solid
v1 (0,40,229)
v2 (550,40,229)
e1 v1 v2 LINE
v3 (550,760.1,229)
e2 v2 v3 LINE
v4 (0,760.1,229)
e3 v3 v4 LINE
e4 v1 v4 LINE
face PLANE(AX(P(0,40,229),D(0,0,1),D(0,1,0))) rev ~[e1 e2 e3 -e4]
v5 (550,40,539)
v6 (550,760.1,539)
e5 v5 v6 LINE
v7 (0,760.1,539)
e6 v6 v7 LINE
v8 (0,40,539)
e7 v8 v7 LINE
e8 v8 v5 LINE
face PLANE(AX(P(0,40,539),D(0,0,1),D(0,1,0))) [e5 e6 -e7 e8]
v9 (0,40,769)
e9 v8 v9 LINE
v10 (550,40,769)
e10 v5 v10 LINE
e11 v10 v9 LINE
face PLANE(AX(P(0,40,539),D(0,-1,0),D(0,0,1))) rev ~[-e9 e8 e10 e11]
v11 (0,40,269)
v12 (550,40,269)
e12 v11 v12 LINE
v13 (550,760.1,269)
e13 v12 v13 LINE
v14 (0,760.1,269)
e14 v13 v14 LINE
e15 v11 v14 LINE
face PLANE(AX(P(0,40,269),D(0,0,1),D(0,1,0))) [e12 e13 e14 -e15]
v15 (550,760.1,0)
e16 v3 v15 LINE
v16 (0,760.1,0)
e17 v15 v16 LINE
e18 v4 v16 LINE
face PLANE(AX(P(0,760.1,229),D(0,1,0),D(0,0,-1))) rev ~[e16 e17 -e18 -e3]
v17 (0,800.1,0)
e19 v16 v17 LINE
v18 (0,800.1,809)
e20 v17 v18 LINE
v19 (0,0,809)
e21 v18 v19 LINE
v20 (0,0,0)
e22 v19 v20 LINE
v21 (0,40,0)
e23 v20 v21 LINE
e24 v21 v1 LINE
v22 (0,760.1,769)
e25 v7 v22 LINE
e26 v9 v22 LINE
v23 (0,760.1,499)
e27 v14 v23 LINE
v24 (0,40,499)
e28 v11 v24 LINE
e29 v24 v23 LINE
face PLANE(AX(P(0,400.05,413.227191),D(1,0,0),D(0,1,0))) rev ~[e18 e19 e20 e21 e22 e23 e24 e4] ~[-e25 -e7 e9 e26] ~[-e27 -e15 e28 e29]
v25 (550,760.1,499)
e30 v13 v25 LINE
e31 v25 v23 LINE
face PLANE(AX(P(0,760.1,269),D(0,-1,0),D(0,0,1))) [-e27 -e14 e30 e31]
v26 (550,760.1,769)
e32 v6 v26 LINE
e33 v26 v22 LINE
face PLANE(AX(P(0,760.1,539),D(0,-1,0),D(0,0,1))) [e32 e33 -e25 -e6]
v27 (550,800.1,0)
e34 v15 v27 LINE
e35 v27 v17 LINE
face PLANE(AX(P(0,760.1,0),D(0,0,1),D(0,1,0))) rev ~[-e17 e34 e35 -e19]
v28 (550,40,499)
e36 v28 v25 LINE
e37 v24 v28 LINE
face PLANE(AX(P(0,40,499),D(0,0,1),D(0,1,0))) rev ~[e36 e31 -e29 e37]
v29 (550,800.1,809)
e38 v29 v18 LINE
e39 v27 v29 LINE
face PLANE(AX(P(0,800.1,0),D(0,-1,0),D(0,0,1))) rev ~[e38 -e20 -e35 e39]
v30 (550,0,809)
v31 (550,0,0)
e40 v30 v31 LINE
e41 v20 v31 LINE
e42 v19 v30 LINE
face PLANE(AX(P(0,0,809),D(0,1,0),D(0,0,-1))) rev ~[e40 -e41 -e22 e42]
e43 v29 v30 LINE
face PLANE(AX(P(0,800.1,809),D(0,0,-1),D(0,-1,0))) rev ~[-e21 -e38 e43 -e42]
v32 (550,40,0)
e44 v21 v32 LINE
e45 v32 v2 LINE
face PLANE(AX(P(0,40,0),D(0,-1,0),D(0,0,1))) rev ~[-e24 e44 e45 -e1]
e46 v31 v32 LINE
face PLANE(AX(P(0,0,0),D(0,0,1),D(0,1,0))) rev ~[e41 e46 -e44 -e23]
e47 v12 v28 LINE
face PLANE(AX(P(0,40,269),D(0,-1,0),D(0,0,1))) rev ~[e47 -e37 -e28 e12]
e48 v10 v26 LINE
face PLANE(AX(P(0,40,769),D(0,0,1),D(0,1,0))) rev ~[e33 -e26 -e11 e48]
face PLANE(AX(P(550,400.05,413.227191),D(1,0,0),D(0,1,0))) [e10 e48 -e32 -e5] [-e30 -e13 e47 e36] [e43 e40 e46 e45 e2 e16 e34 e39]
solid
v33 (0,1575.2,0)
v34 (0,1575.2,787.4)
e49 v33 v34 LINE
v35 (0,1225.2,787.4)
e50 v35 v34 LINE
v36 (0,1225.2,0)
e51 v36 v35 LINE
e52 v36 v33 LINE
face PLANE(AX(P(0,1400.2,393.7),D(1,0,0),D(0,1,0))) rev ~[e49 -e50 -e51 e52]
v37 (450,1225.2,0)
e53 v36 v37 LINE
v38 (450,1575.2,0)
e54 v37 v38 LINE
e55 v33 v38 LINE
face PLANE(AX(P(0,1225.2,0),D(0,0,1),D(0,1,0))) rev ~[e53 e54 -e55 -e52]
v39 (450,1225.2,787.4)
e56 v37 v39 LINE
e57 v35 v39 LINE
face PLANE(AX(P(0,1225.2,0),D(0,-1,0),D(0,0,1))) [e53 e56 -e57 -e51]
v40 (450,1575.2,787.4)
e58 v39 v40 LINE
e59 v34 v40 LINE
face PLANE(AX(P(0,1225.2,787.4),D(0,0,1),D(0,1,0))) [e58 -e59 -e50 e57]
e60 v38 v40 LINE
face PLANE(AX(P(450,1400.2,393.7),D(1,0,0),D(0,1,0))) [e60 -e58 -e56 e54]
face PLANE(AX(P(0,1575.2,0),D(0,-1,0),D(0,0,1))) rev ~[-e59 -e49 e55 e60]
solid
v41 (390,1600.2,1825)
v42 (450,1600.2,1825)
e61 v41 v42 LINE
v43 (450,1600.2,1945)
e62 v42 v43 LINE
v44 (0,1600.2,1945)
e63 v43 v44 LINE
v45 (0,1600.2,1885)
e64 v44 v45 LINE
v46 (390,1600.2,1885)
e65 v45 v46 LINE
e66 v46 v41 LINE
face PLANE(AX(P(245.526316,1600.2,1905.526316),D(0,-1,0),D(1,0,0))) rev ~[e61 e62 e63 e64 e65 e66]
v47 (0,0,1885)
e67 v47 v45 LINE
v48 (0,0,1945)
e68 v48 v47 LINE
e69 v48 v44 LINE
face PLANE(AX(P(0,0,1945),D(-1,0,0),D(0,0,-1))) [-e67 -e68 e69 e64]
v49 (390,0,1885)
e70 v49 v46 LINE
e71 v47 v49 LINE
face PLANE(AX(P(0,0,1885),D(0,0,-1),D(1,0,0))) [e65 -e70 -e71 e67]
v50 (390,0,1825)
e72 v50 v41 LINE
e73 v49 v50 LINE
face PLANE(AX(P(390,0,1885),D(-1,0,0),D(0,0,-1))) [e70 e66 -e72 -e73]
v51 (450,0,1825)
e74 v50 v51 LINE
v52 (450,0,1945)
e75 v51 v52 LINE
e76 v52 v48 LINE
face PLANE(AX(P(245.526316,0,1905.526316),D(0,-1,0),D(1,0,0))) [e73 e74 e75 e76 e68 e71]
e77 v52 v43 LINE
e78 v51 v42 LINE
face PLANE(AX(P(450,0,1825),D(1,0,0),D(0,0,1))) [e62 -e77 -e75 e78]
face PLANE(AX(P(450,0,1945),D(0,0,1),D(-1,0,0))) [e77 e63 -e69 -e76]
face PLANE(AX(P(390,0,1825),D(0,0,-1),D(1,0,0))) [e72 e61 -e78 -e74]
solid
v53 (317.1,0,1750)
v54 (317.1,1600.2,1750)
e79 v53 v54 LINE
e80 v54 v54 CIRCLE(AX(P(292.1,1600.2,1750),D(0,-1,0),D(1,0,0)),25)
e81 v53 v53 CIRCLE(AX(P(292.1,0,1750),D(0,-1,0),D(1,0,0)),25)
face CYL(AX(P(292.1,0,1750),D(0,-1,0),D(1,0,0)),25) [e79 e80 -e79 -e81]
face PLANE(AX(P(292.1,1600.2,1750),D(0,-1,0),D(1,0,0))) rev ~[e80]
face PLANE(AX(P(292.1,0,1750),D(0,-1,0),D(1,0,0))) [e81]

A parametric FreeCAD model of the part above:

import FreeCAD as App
import Part
import Sketcher

V = App.Vector
Q = App.Units.Quantity

doc = App.newDocument("Part")
body = doc.addObject("PartDesign::Body", "Body")
body.AllowCompound = True

# Sketch on XZ plane
sketch1 = doc.addObject("Sketcher::SketchObject", "Sketch")
body.addObject(sketch1)
sketch1.AttachmentSupport = (doc.XZ_Plane, [""])
sketch1.MapMode = "FlatFace"
sketch1.addGeometry([
    Part.Circle(V(292.1, 1750, 0), V(0, 0, 1), 25),  # 0
    Part.LineSegment(V(450, 1945, 0), V(0, 1945, 0)),  # 1
    Part.LineSegment(V(0, 1945, 0), V(0, 1885, 0)),  # 2
    Part.LineSegment(V(0, 1885, 0), V(390, 1885, 0)),  # 3
    Part.LineSegment(V(390, 1885, 0), V(390, 1825, 0)),  # 4
    Part.LineSegment(V(390, 1825, 0), V(450, 1825, 0)),  # 5
    Part.LineSegment(V(450, 1825, 0), V(450, 1945, 0)),  # 6
], False)
sketch1.addConstraint([
    Sketcher.Constraint("Coincident", 1, 2, 2, 1),
    Sketcher.Constraint("Coincident", 2, 2, 3, 1),
    Sketcher.Constraint("Coincident", 3, 2, 4, 1),
    Sketcher.Constraint("Coincident", 4, 2, 5, 1),
    Sketcher.Constraint("Coincident", 5, 2, 6, 1),
    Sketcher.Constraint("Coincident", 6, 2, 1, 1),
    Sketcher.Constraint("Horizontal", 1),
    Sketcher.Constraint("Vertical", 2),
    Sketcher.Constraint("Horizontal", 3),
    Sketcher.Constraint("Vertical", 4),
    Sketcher.Constraint("Horizontal", 5),
    Sketcher.Constraint("Vertical", 6),
    Sketcher.Constraint("PointOnObject", 1, 2, -2),
    Sketcher.Constraint("Equal", 5, 2),
    Sketcher.Constraint("Equal", 2, 4),
    Sketcher.Constraint("Diameter", 0, Q("50 mm")),
    Sketcher.Constraint("DistanceX", 1, 2, 1, 1, Q("450 mm")),
    Sketcher.Constraint("DistanceX", 3, 1, 3, 2, Q("390 mm")),
    Sketcher.Constraint("DistanceY", -1, 1, 0, 3, Q("1750 mm")),
    Sketcher.Constraint("DistanceY", -1, 1, 1, 2, Q("1945 mm")),
    Sketcher.Constraint("DistanceX", -1, 1, 0, 3, Q("292.1 mm")),
])
pad1 = doc.addObject("PartDesign::Pad", "Pad")
body.addObject(pad1)
pad1.Profile = sketch1
pad1.Length = 1600.2
pad1.Reversed = True
body2 = doc.addObject("PartDesign::Body", "Body001")

# Sketch on YZ plane
sketch2 = doc.addObject("Sketcher::SketchObject", "Sketch001")
body2.addObject(sketch2)
sketch2.AttachmentSupport = (doc.getObject("YZ_Plane001"), [""])
sketch2.MapMode = "FlatFace"
sketch2.addGeometry([
    Part.LineSegment(V(800.1, 809, 0), V(0, 809, 0)),  # 0
    Part.LineSegment(V(0, 809, 0), V(0, 0, 0)),  # 1
    Part.LineSegment(V(0, 0, 0), V(40, 0, 0)),  # 2
    Part.LineSegment(V(40, 0, 0), V(40, 229, 0)),  # 3
    Part.LineSegment(V(40, 229, 0), V(760.1, 229, 0)),  # 4
    Part.LineSegment(V(760.1, 229, 0), V(760.1, 0, 0)),  # 5
    Part.LineSegment(V(760.1, 0, 0), V(800.1, 0, 0)),  # 6
    Part.LineSegment(V(800.1, 0, 0), V(800.1, 809, 0)),  # 7
    Part.LineSegment(V(760.1, 269, 0), V(40, 269, 0)),  # 8
    Part.LineSegment(V(40, 269, 0), V(40, 499, 0)),  # 9
    Part.LineSegment(V(40, 499, 0), V(760.1, 499, 0)),  # 10
    Part.LineSegment(V(760.1, 499, 0), V(760.1, 269, 0)),  # 11
    Part.LineSegment(V(760.1, 539, 0), V(40, 539, 0)),  # 12
    Part.LineSegment(V(40, 539, 0), V(40, 769, 0)),  # 13
    Part.LineSegment(V(40, 769, 0), V(760.1, 769, 0)),  # 14
    Part.LineSegment(V(760.1, 769, 0), V(760.1, 539, 0)),  # 15
], False)
sketch2.addConstraint([
    Sketcher.Constraint("Coincident", 0, 2, 1, 1),
    Sketcher.Constraint("Coincident", 1, 2, 2, 1),
    Sketcher.Constraint("Coincident", 2, 2, 3, 1),
    Sketcher.Constraint("Coincident", 3, 2, 4, 1),
    Sketcher.Constraint("Coincident", 4, 2, 5, 1),
    Sketcher.Constraint("Coincident", 5, 2, 6, 1),
    Sketcher.Constraint("Coincident", 6, 2, 7, 1),
    Sketcher.Constraint("Coincident", 7, 2, 0, 1),
    Sketcher.Constraint("Coincident", 8, 2, 9, 1),
    Sketcher.Constraint("Coincident", 9, 2, 10, 1),
    Sketcher.Constraint("Coincident", 10, 2, 11, 1),
    Sketcher.Constraint("Coincident", 11, 2, 8, 1),
    Sketcher.Constraint("Coincident", 12, 2, 13, 1),
    Sketcher.Constraint("Coincident", 13, 2, 14, 1),
    Sketcher.Constraint("Coincident", 14, 2, 15, 1),
    Sketcher.Constraint("Coincident", 15, 2, 12, 1),
    Sketcher.Constraint("Horizontal", 0),
    Sketcher.Constraint("Vertical", 1),
    Sketcher.Constraint("Horizontal", 2),
    Sketcher.Constraint("Vertical", 3),
    Sketcher.Constraint("Horizontal", 4),
    Sketcher.Constraint("Vertical", 5),
    Sketcher.Constraint("Horizontal", 6),
    Sketcher.Constraint("Vertical", 7),
    Sketcher.Constraint("Horizontal", 8),
    Sketcher.Constraint("Vertical", 9),
    Sketcher.Constraint("Horizontal", 10),
    Sketcher.Constraint("Vertical", 11),
    Sketcher.Constraint("Horizontal", 12),
    Sketcher.Constraint("Vertical", 13),
    Sketcher.Constraint("Horizontal", 14),
    Sketcher.Constraint("Vertical", 15),
    Sketcher.Constraint("Coincident", 1, 2, -1, 1),
    Sketcher.Constraint("PointOnObject", 5, 2, -1),
    Sketcher.Constraint("Vertical", 3, 2, 8, 2),
    Sketcher.Constraint("Vertical", 5, 2, 10, 2),
    Sketcher.Constraint("Vertical", 9, 2, 12, 2),
    Sketcher.Constraint("Vertical", 11, 2, 14, 2),
    Sketcher.Constraint("Equal", 2, 6),
    Sketcher.Constraint("Equal", 11, 13),
    Sketcher.Constraint("DistanceX", 2, 1, 2, 2, Q("40 mm")),
    Sketcher.Constraint("DistanceY", 1, 2, 1, 1, Q("809 mm")),
    Sketcher.Constraint("DistanceY", 3, 1, 3, 2, Q("229 mm")),
    Sketcher.Constraint("DistanceY", 9, 1, 9, 2, Q("230 mm")),
    Sketcher.Constraint("DistanceX", 0, 2, 0, 1, Q("800.1 mm")),
    Sketcher.Constraint("DistanceY", -1, 1, 8, 2, Q("269 mm")),
    Sketcher.Constraint("DistanceY", -1, 1, 12, 2, Q("539 mm")),
])
pad2 = doc.addObject("PartDesign::Pad", "Pad001")
body2.addObject(pad2)
pad2.Profile = sketch2
pad2.Length = 550

# Sketch on YZ plane
sketch3 = doc.addObject("Sketcher::SketchObject", "Sketch002")
body2.addObject(sketch3)
sketch3.AttachmentSupport = (doc.getObject("YZ_Plane001"), [""])
sketch3.MapMode = "FlatFace"
sketch3.addGeometry([
    Part.LineSegment(V(800.1, 809, 0), V(0, 809, 0)),  # 0
    Part.LineSegment(V(0, 809, 0), V(0, 0, 0)),  # 1
    Part.LineSegment(V(0, 0, 0), V(40, 0, 0)),  # 2
    Part.LineSegment(V(40, 0, 0), V(40, 229, 0)),  # 3
    Part.LineSegment(V(40, 229, 0), V(760.1, 229, 0)),  # 4
    Part.LineSegment(V(760.1, 229, 0), V(760.1, 0, 0)),  # 5
    Part.LineSegment(V(760.1, 0, 0), V(800.1, 0, 0)),  # 6
    Part.LineSegment(V(800.1, 0, 0), V(800.1, 809, 0)),  # 7
    Part.LineSegment(V(760.1, 269, 0), V(40, 269, 0)),  # 8
    Part.LineSegment(V(40, 269, 0), V(40, 499, 0)),  # 9
    Part.LineSegment(V(40, 499, 0), V(760.1, 499, 0)),  # 10
    Part.LineSegment(V(760.1, 499, 0), V(760.1, 269, 0)),  # 11
    Part.LineSegment(V(760.1, 539, 0), V(40, 539, 0)),  # 12
    Part.LineSegment(V(40, 539, 0), V(40, 769, 0)),  # 13
    Part.LineSegment(V(40, 769, 0), V(760.1, 769, 0)),  # 14
    Part.LineSegment(V(760.1, 769, 0), V(760.1, 539, 0)),  # 15
], False)
sketch3.addConstraint([
    Sketcher.Constraint("Coincident", 0, 2, 1, 1),
    Sketcher.Constraint("Coincident", 1, 2, 2, 1),
    Sketcher.Constraint("Coincident", 2, 2, 3, 1),
    Sketcher.Constraint("Coincident", 3, 2, 4, 1),
    Sketcher.Constraint("Coincident", 4, 2, 5, 1),
    Sketcher.Constraint("Coincident", 5, 2, 6, 1),
    Sketcher.Constraint("Coincident", 6, 2, 7, 1),
    Sketcher.Constraint("Coincident", 7, 2, 0, 1),
    Sketcher.Constraint("Coincident", 8, 2, 9, 1),
    Sketcher.Constraint("Coincident", 9, 2, 10, 1),
    Sketcher.Constraint("Coincident", 10, 2, 11, 1),
    Sketcher.Constraint("Coincident", 11, 2, 8, 1),
    Sketcher.Constraint("Coincident", 12, 2, 13, 1),
    Sketcher.Constraint("Coincident", 13, 2, 14, 1),
    Sketcher.Constraint("Coincident", 14, 2, 15, 1),
    Sketcher.Constraint("Coincident", 15, 2, 12, 1),
    Sketcher.Constraint("Horizontal", 0),
    Sketcher.Constraint("Vertical", 1),
    Sketcher.Constraint("Horizontal", 2),
    Sketcher.Constraint("Vertical", 3),
    Sketcher.Constraint("Horizontal", 4),
    Sketcher.Constraint("Vertical", 5),
    Sketcher.Constraint("Horizontal", 6),
    Sketcher.Constraint("Vertical", 7),
    Sketcher.Constraint("Horizontal", 8),
    Sketcher.Constraint("Vertical", 9),
    Sketcher.Constraint("Horizontal", 10),
    Sketcher.Constraint("Vertical", 11),
    Sketcher.Constraint("Horizontal", 12),
    Sketcher.Constraint("Vertical", 13),
    Sketcher.Constraint("Horizontal", 14),
    Sketcher.Constraint("Vertical", 15),
    Sketcher.Constraint("Coincident", 1, 2, -1, 1),
    Sketcher.Constraint("PointOnObject", 5, 2, -1),
    Sketcher.Constraint("Vertical", 3, 2, 8, 2),
    Sketcher.Constraint("Vertical", 5, 2, 10, 2),
    Sketcher.Constraint("Vertical", 9, 2, 12, 2),
    Sketcher.Constraint("Vertical", 11, 2, 14, 2),
    Sketcher.Constraint("Equal", 2, 6),
    Sketcher.Constraint("Equal", 11, 13),
    Sketcher.Constraint("DistanceX", 2, 1, 2, 2, Q("40 mm")),
    Sketcher.Constraint("DistanceY", 1, 2, 1, 1, Q("809 mm")),
    Sketcher.Constraint("DistanceY", 3, 1, 3, 2, Q("229 mm")),
    Sketcher.Constraint("DistanceY", 9, 1, 9, 2, Q("230 mm")),
    Sketcher.Constraint("DistanceX", 0, 2, 0, 1, Q("800.1 mm")),
    Sketcher.Constraint("DistanceY", -1, 1, 8, 2, Q("269 mm")),
    Sketcher.Constraint("DistanceY", -1, 1, 12, 2, Q("539 mm")),
])
pad3 = doc.addObject("PartDesign::Pad", "Pad002")
body2.addObject(pad3)
pad3.Profile = sketch3
pad3.Length = 25
body3 = doc.addObject("PartDesign::Body", "Body002")

# Sketch on YZ plane
sketch4 = doc.addObject("Sketcher::SketchObject", "Sketch003")
body3.addObject(sketch4)
sketch4.AttachmentSupport = (doc.getObject("YZ_Plane002"), [""])
sketch4.MapMode = "FlatFace"
sketch4.addGeometry([
    Part.LineSegment(V(1225.2, 787.4, 0), V(1225.2, 0, 0)),
    Part.LineSegment(V(1225.2, 0, 0), V(1575.2, 0, 0)),
    Part.LineSegment(V(1575.2, 0, 0), V(1575.2, 787.4, 0)),
    Part.LineSegment(V(1575.2, 787.4, 0), V(1225.2, 787.4, 0)),
], False)
sketch4.addConstraint([
    Sketcher.Constraint("Coincident", 0, 2, 1, 1),
    Sketcher.Constraint("Coincident", 1, 2, 2, 1),
    Sketcher.Constraint("Coincident", 2, 2, 3, 1),
    Sketcher.Constraint("Coincident", 3, 2, 0, 1),
    Sketcher.Constraint("Vertical", 0),
    Sketcher.Constraint("Horizontal", 1),
    Sketcher.Constraint("Vertical", 2),
    Sketcher.Constraint("Horizontal", 3),
    Sketcher.Constraint("PointOnObject", 0, 2, -1),
    Sketcher.Constraint("DistanceX", 1, 1, 1, 2, Q("350 mm")),
    Sketcher.Constraint("DistanceY", 0, 2, 0, 1, Q("787.4 mm")),
    Sketcher.Constraint("DistanceX", -1, 1, 0, 2, Q("1225.2 mm")),
])
pad4 = doc.addObject("PartDesign::Pad", "Pad003")
body3.addObject(pad4)
pad4.Profile = sketch4
pad4.Length = 450

doc.recompute()
